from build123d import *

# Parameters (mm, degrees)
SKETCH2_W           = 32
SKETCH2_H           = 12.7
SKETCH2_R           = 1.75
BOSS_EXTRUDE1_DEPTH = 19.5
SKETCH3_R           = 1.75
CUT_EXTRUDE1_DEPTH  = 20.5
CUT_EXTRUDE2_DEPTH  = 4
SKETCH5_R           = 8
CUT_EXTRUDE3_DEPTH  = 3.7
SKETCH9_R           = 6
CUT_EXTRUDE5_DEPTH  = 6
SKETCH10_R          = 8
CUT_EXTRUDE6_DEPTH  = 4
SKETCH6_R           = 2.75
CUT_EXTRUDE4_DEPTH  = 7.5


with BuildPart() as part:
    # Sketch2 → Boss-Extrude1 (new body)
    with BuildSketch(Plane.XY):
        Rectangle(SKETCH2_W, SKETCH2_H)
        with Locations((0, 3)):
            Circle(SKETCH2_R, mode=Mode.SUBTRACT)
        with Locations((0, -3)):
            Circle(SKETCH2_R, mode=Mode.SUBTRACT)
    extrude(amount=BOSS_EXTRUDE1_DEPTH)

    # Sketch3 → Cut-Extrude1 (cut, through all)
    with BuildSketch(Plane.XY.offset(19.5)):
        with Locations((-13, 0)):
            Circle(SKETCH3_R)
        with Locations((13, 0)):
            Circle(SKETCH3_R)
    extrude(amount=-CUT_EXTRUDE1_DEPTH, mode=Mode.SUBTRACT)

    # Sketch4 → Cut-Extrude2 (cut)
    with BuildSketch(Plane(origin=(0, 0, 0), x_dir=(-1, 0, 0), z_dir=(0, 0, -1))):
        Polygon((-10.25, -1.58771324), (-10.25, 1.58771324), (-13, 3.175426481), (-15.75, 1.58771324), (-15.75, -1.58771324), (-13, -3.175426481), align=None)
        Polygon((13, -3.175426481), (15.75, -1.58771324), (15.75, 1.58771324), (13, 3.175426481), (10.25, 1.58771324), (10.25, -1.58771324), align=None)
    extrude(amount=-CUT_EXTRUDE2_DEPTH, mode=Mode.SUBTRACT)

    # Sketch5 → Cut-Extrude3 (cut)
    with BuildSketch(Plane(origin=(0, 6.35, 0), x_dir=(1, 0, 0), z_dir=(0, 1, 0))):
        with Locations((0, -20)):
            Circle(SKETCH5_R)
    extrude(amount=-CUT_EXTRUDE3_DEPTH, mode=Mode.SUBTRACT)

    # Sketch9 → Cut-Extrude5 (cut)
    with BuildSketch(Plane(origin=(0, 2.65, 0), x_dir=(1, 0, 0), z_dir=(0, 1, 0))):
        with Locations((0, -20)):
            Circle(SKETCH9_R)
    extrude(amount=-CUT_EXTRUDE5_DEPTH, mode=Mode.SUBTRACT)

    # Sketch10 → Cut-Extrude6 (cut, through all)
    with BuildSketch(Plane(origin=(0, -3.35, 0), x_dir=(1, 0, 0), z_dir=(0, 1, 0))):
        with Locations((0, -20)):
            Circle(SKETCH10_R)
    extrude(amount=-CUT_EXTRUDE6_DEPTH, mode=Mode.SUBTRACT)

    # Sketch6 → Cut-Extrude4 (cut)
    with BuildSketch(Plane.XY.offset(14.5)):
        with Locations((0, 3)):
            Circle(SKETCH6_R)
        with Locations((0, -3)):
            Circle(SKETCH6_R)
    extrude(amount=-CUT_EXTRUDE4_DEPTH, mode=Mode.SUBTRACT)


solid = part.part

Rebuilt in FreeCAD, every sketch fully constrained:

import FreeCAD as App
import Part
import Sketcher
Q = App.Units.Quantity

doc = App.newDocument("Part")
body = doc.addObject("PartDesign::Body", "Body")

# Sketch on XY plane
sketch1 = body.newObject("Sketcher::SketchObject", "Sketch")
sketch1.AttachmentSupport = (doc.getObject("XY_Plane"), [""])
sketch1.MapMode = "FlatFace"
sketch1.addGeometry(Part.LineSegment(App.Vector(-16, 6.3, 0), App.Vector(-16, -6.3, 0)), False)
sketch1.addGeometry(Part.LineSegment(App.Vector(-16, -6.3, 0), App.Vector(16, -6.3, 0)), False)
sketch1.addGeometry(Part.LineSegment(App.Vector(16, -6.3, 0), App.Vector(16, 6.3, 0)), False)
sketch1.addGeometry(Part.LineSegment(App.Vector(16, 6.3, 0), App.Vector(-16, 6.3, 0)), False)
sketch1.addGeometry(Part.Circle(App.Vector(0, -3, 0), App.Vector(0, 0, 1), 1.8), False)
sketch1.addGeometry(Part.Circle(App.Vector(0, 3, 0), App.Vector(0, 0, 1), 1.8), False)
sketch1.addConstraint(Sketcher.Constraint("Coincident", 0, 2, 1, 1))
sketch1.addConstraint(Sketcher.Constraint("Coincident", 1, 2, 2, 1))
sketch1.addConstraint(Sketcher.Constraint("Coincident", 2, 2, 3, 1))
sketch1.addConstraint(Sketcher.Constraint("Coincident", 3, 2, 0, 1))
sketch1.addConstraint(Sketcher.Constraint("Vertical", 0))
sketch1.addConstraint(Sketcher.Constraint("Horizontal", 1))
sketch1.addConstraint(Sketcher.Constraint("Vertical", 2))
sketch1.addConstraint(Sketcher.Constraint("Horizontal", 3))
sketch1.addConstraint(Sketcher.Constraint("Equal", 4, 5))
sketch1.addConstraint(Sketcher.Constraint("Symmetric", 4, 3, 5, 3, -1, 1))
sketch1.addConstraint(Sketcher.Constraint("Symmetric", 0, 2, 2, 2, -1, 1))
sketch1.addConstraint(Sketcher.Constraint("PointOnObject", 4, 3, -2))
sketch1.addConstraint(Sketcher.Constraint("Diameter", 4, Q("3.5 mm")))
sketch1.addConstraint(Sketcher.Constraint("DistanceX", 1, 1, 1, 2, Q("32 mm")))
sketch1.addConstraint(Sketcher.Constraint("DistanceY", 0, 2, 0, 1, Q("12.7 mm")))
sketch1.addConstraint(Sketcher.Constraint("DistanceY", 4, 3, -1, 1, Q("3 mm")))
pad1 = body.newObject("PartDesign::Pad", "Pad")
pad1.Profile = sketch1
pad1.Length = 19.5

# Sketch on XY plane
sketch2 = body.newObject("Sketcher::SketchObject", "Sketch001")
sketch2.AttachmentSupport = (doc.getObject("XY_Plane"), [""])
sketch2.MapMode = "FlatFace"
sketch2.AttachmentOffset = App.Placement(App.Vector(0, 0, 19.5), App.Rotation())
sketch2.addGeometry(Part.Circle(App.Vector(-13, 0, 0), App.Vector(0, 0, 1), 1.8), False)
sketch2.addGeometry(Part.Circle(App.Vector(13, 0, 0), App.Vector(0, 0, 1), 1.8), False)
sketch2.addConstraint(Sketcher.Constraint("Equal", 0, 1))
sketch2.addConstraint(Sketcher.Constraint("Symmetric", 0, 3, 1, 3, -1, 1))
sketch2.addConstraint(Sketcher.Constraint("PointOnObject", 0, 3, -1))
sketch2.addConstraint(Sketcher.Constraint("Diameter", 0, Q("3.5 mm")))
sketch2.addConstraint(Sketcher.Constraint("DistanceX", 0, 3, -1, 1, Q("13 mm")))
pocket1 = body.newObject("PartDesign::Pocket", "Pocket")
pocket1.Profile = sketch2
pocket1.Type = "ThroughAll"

# Sketch on XY plane
sketch3 = body.newObject("Sketcher::SketchObject", "Sketch002")
sketch3.AttachmentSupport = (doc.getObject("XY_Plane"), [""])
sketch3.MapMode = "FlatFace"
sketch3.addGeometry(Part.LineSegment(App.Vector(10.2, -1.6, 0), App.Vector(10.2, 1.6, 0)), False)
sketch3.addGeometry(Part.LineSegment(App.Vector(10.2, 1.6, 0), App.Vector(13, 3.2, 0)), False)
sketch3.addGeometry(Part.LineSegment(App.Vector(13, 3.2, 0), App.Vector(15.8, 1.6, 0)), False)
sketch3.addGeometry(Part.LineSegment(App.Vector(15.8, 1.6, 0), App.Vector(15.8, -1.6, 0)), False)
sketch3.addGeometry(Part.LineSegment(App.Vector(15.8, -1.6, 0), App.Vector(13, -3.2, 0)), False)
sketch3.addGeometry(Part.LineSegment(App.Vector(13, -3.2, 0), App.Vector(10.2, -1.6, 0)), False)
sketch3.addGeometry(Part.LineSegment(App.Vector(-13, -3.2, 0), App.Vector(-15.8, -1.6, 0)), False)
sketch3.addGeometry(Part.LineSegment(App.Vector(-15.8, -1.6, 0), App.Vector(-15.8, 1.6, 0)), False)
sketch3.addGeometry(Part.LineSegment(App.Vector(-15.8, 1.6, 0), App.Vector(-13, 3.2, 0)), False)
sketch3.addGeometry(Part.LineSegment(App.Vector(-13, 3.2, 0), App.Vector(-10.2, 1.6, 0)), False)
sketch3.addGeometry(Part.LineSegment(App.Vector(-10.2, 1.6, 0), App.Vector(-10.2, -1.6, 0)), False)
sketch3.addGeometry(Part.LineSegment(App.Vector(-10.2, -1.6, 0), App.Vector(-13, -3.2, 0)), False)
sketch3.addConstraint(Sketcher.Constraint("Coincident", 0, 2, 1, 1))
sketch3.addConstraint(Sketcher.Constraint("Coincident", 1, 2, 2, 1))
sketch3.addConstraint(Sketcher.Constraint("Coincident", 2, 2, 3, 1))
sketch3.addConstraint(Sketcher.Constraint("Coincident", 3, 2, 4, 1))
sketch3.addConstraint(Sketcher.Constraint("Coincident", 4, 2, 5, 1))
sketch3.addConstraint(Sketcher.Constraint("Coincident", 5, 2, 0, 1))
sketch3.addConstraint(Sketcher.Constraint("Coincident", 6, 2, 7, 1))
sketch3.addConstraint(Sketcher.Constraint("Coincident", 7, 2, 8, 1))
sketch3.addConstraint(Sketcher.Constraint("Coincident", 8, 2, 9, 1))
sketch3.addConstraint(Sketcher.Constraint("Coincident", 9, 2, 10, 1))
sketch3.addConstraint(Sketcher.Constraint("Coincident", 10, 2, 11, 1))
sketch3.addConstraint(Sketcher.Constraint("Coincident", 11, 2, 6, 1))
sketch3.addConstraint(Sketcher.Constraint("Vertical", 0))
sketch3.addConstraint(Sketcher.Constraint("Vertical", 3))
sketch3.addConstraint(Sketcher.Constraint("Vertical", 7))
sketch3.addConstraint(Sketcher.Constraint("Vertical", 10))
sketch3.addConstraint(Sketcher.Constraint("Symmetric", 2, 2, 6, 2, -1, 1))
sketch3.addConstraint(Sketcher.Constraint("Symmetric", 4, 2, 8, 2, -1, 1))
sketch3.addConstraint(Sketcher.Constraint("Symmetric", 5, 2, 9, 2, -1, 1))
sketch3.addConstraint(Sketcher.Constraint("Symmetric", 1, 2, 11, 2, -1, 1))
sketch3.addConstraint(Sketcher.Constraint("Symmetric", 1, 2, 8, 2, -2))
sketch3.addConstraint(Sketcher.Constraint("Parallel", 1, 4))
sketch3.addConstraint(Sketcher.Constraint("Parallel", 2, 5))
sketch3.addConstraint(Sketcher.Constraint("Parallel", 4, 8))
sketch3.addConstraint(Sketcher.Constraint("Parallel", 8, 11))
sketch3.addConstraint(Sketcher.Constraint("Horizontal", 0, 2, 2, 2))
sketch3.addConstraint(Sketcher.Constraint("Horizontal", 3, 2, 5, 2))
sketch3.addConstraint(Sketcher.Constraint("Angle", 1, Q("30 deg")))
sketch3.addConstraint(Sketcher.Constraint("DistanceX", -1, 1, 1, 2, Q("13 mm")))
sketch3.addConstraint(Sketcher.Constraint("DistanceX", 0, 2, 2, 2, Q("5.5 mm")))
sketch3.addConstraint(Sketcher.Constraint("DistanceY", 0, 1, 0, 2, Q("3.175426 mm")))
pocket2 = body.newObject("PartDesign::Pocket", "Pocket001")
pocket2.Profile = sketch3
pocket2.Length = 4
pocket2.Reversed = True

# Sketch on XZ plane
sketch4 = body.newObject("Sketcher::SketchObject", "Sketch003")
sketch4.AttachmentSupport = (doc.getObject("XZ_Plane"), [""])
sketch4.MapMode = "FlatFace"
sketch4.AttachmentOffset = App.Placement(App.Vector(0, 0, -6.35), App.Rotation())
sketch4.addGeometry(Part.Circle(App.Vector(0, 20, 0), App.Vector(0, 0, 1), 8), False)
sketch4.addConstraint(Sketcher.Constraint("PointOnObject", 0, 3, -2))
sketch4.addConstraint(Sketcher.Constraint("Diameter", 0, Q("16 mm")))
sketch4.addConstraint(Sketcher.Constraint("DistanceY", -1, 1, 0, 3, Q("20 mm")))
pocket3 = body.newObject("PartDesign::Pocket", "Pocket002")
pocket3.Profile = sketch4
pocket3.Length = 3.7
pocket3.Reversed = True

# Sketch on XZ plane
sketch5 = body.newObject("Sketcher::SketchObject", "Sketch004")
sketch5.AttachmentSupport = (doc.getObject("XZ_Plane"), [""])
sketch5.MapMode = "FlatFace"
sketch5.AttachmentOffset = App.Placement(App.Vector(0, 0, -2.65), App.Rotation())
sketch5.addGeometry(Part.Circle(App.Vector(0, 20, 0), App.Vector(0, 0, 1), 6), False)
sketch5.addConstraint(Sketcher.Constraint("PointOnObject", 0, 3, -2))
sketch5.addConstraint(Sketcher.Constraint("Diameter", 0, Q("12 mm")))
sketch5.addConstraint(Sketcher.Constraint("DistanceY", -1, 1, 0, 3, Q("20 mm")))
pocket4 = body.newObject("PartDesign::Pocket", "Pocket003")
pocket4.Profile = sketch5
pocket4.Length = 6
pocket4.Reversed = True

# Sketch on XZ plane
sketch6 = body.newObject("Sketcher::SketchObject", "Sketch005")
sketch6.AttachmentSupport = (doc.getObject("XZ_Plane"), [""])
sketch6.MapMode = "FlatFace"
sketch6.AttachmentOffset = App.Placement(App.Vector(0, 0, 3.35), App.Rotation())
sketch6.addGeometry(Part.Circle(App.Vector(0, 20, 0), App.Vector(0, 0, 1), 8), False)
sketch6.addConstraint(Sketcher.Constraint("PointOnObject", 0, 3, -2))
sketch6.addConstraint(Sketcher.Constraint("Diameter", 0, Q("16 mm")))
sketch6.addConstraint(Sketcher.Constraint("DistanceY", -1, 1, 0, 3, Q("20 mm")))
pocket5 = body.newObject("PartDesign::Pocket", "Pocket004")
pocket5.Profile = sketch6
pocket5.Type = "ThroughAll"
pocket5.Reversed = True

# Sketch on XY plane
sketch7 = body.newObject("Sketcher::SketchObject", "Sketch006")
sketch7.AttachmentSupport = (doc.getObject("XY_Plane"), [""])
sketch7.MapMode = "FlatFace"
sketch7.AttachmentOffset = App.Placement(App.Vector(0, 0, 14.5), App.Rotation())
sketch7.addGeometry(Part.Circle(App.Vector(0, 3, 0), App.Vector(0, 0, 1), 2.8), False)
sketch7.addGeometry(Part.Circle(App.Vector(0, -3, 0), App.Vector(0, 0, 1), 2.8), False)
sketch7.addConstraint(Sketcher.Constraint("Equal", 0, 1))
sketch7.addConstraint(Sketcher.Constraint("Symmetric", 0, 3, 1, 3, -1, 1))
sketch7.addConstraint(Sketcher.Constraint("PointOnObject", 0, 3, -2))
sketch7.addConstraint(Sketcher.Constraint("Diameter", 0, Q("5.5 mm")))
sketch7.addConstraint(Sketcher.Constraint("DistanceY", -1, 1, 0, 3, Q("3 mm")))
pocket6 = body.newObject("PartDesign::Pocket", "Pocket005")
pocket6.Profile = sketch7
pocket6.Length = 7.5

doc.recompute()
